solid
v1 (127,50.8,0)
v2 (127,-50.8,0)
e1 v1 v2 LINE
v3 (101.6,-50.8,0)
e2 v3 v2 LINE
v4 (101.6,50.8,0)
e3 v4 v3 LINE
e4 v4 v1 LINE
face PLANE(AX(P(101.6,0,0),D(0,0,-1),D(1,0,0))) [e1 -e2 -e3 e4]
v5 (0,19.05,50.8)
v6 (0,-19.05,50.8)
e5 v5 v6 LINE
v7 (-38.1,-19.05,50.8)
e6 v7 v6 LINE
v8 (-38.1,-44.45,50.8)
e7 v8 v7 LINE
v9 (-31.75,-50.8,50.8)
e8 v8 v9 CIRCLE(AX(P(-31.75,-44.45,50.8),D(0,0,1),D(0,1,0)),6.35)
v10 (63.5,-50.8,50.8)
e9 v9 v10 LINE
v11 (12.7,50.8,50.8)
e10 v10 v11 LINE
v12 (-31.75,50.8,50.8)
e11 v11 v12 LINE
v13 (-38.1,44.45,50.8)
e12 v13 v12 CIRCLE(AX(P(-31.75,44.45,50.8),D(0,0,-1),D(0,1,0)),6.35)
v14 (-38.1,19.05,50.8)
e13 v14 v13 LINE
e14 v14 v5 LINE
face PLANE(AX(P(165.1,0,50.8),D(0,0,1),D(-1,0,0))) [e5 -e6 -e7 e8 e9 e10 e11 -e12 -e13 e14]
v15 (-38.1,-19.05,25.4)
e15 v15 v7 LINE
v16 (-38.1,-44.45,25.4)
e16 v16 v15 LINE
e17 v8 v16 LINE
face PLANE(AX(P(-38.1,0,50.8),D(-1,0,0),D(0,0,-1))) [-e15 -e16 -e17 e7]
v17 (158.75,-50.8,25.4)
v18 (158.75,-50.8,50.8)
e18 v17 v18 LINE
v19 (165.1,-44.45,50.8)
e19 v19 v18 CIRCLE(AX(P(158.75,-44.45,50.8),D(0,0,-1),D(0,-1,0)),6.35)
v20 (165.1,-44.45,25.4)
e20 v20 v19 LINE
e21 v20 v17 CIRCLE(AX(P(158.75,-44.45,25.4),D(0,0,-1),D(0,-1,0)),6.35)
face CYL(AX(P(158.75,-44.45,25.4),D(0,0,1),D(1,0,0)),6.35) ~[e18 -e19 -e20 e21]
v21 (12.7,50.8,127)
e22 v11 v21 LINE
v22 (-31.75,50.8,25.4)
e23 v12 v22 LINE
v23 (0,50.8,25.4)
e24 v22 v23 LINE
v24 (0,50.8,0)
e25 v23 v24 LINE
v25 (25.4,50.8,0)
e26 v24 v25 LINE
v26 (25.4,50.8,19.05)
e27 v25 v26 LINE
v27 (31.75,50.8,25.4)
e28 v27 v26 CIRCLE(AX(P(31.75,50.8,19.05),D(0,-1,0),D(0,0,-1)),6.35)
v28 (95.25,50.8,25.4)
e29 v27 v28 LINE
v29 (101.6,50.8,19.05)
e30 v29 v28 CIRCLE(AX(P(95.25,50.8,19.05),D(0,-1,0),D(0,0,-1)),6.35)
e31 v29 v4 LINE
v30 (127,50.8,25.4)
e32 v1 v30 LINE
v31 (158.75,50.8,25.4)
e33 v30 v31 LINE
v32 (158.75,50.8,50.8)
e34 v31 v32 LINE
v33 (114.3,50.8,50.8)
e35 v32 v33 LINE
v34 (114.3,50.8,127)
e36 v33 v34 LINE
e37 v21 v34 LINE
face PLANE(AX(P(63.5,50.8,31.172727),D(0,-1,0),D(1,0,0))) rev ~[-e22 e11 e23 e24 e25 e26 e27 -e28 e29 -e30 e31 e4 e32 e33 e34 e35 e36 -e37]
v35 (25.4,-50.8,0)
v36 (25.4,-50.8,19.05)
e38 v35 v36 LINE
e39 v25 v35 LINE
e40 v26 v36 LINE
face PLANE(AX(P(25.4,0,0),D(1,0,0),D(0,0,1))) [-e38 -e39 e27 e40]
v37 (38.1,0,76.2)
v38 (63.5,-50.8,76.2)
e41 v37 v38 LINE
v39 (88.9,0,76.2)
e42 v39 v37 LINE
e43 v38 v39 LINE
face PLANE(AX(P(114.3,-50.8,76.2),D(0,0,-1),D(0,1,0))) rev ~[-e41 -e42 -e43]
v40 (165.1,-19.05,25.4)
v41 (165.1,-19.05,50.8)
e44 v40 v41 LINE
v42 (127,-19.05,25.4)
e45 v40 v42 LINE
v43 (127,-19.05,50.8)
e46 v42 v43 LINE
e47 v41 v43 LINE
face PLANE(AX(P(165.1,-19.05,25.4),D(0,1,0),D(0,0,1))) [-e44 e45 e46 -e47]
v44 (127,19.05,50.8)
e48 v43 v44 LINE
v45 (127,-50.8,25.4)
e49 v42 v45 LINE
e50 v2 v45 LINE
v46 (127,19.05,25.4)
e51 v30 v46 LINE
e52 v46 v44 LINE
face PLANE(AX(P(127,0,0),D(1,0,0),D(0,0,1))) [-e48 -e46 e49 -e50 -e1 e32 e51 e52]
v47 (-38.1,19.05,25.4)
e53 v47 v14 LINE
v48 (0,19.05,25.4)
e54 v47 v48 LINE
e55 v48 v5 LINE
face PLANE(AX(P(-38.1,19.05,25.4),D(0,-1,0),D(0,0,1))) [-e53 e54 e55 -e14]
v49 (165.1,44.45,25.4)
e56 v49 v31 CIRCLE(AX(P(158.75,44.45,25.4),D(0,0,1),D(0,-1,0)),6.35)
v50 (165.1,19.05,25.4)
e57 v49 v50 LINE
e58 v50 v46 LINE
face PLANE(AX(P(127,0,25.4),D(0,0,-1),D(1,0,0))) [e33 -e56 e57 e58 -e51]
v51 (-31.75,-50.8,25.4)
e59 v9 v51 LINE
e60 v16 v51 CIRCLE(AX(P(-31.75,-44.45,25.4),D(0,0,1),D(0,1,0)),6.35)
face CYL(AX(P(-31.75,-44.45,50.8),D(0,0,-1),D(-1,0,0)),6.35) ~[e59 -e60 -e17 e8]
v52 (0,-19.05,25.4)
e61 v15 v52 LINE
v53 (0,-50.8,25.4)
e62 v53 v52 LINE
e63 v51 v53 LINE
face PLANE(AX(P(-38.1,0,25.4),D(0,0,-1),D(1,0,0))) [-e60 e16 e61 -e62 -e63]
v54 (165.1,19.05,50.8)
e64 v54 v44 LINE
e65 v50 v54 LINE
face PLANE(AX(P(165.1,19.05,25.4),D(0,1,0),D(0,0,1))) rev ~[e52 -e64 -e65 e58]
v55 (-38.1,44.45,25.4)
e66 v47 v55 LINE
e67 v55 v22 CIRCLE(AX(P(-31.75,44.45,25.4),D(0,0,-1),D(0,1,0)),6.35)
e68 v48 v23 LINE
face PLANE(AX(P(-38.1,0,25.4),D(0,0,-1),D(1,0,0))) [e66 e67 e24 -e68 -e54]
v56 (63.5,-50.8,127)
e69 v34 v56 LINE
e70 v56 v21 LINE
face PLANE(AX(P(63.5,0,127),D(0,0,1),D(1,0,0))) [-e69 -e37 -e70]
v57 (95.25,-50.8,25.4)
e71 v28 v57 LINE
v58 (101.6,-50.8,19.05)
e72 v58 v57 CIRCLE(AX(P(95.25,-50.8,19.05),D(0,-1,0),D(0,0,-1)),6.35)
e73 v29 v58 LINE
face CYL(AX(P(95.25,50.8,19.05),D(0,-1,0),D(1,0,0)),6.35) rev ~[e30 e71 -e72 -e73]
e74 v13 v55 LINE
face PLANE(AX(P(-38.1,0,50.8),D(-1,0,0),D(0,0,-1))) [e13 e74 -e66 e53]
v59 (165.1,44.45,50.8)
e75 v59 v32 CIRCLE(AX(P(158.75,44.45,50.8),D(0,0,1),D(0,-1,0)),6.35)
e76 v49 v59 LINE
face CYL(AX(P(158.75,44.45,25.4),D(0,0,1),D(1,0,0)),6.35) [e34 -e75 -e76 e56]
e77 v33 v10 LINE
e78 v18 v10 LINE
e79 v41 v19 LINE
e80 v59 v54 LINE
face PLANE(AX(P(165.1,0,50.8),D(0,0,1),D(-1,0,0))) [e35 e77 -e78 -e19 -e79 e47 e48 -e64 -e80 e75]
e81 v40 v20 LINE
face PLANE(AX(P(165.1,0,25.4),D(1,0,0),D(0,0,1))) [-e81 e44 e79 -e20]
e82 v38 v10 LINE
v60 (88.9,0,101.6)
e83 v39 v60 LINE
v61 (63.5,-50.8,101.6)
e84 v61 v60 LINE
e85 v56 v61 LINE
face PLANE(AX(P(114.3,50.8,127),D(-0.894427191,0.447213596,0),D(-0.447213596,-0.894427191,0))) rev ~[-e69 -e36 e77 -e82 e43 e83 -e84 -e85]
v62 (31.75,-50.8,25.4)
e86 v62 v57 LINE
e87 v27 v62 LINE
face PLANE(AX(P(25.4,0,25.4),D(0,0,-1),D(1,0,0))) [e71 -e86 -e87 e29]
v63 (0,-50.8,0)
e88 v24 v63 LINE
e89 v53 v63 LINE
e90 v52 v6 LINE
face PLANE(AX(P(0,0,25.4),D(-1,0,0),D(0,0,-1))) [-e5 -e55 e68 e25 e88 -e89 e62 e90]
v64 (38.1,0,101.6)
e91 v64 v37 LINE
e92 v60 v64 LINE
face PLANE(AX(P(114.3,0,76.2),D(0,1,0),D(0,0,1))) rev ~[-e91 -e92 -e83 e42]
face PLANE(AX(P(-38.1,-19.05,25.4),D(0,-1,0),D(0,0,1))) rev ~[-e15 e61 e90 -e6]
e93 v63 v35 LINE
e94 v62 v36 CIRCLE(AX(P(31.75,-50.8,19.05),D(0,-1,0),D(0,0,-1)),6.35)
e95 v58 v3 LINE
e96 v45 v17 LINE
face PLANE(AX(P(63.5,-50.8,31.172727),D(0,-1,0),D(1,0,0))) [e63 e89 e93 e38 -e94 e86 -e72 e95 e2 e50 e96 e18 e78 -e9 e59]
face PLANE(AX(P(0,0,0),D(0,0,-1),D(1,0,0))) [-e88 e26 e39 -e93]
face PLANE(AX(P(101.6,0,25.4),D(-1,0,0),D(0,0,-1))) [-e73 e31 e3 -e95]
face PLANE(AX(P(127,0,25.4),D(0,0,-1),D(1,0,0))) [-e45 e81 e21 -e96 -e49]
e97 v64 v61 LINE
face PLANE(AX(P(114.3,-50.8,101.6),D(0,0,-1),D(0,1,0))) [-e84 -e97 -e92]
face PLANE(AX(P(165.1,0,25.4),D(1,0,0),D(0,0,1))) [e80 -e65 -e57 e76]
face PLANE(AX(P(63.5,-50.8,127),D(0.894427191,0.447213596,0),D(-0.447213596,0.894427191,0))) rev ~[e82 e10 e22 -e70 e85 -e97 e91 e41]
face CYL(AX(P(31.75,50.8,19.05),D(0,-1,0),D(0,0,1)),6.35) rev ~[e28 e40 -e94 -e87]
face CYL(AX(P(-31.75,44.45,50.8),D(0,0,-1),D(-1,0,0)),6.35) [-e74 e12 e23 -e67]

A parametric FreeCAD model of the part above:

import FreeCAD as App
import Part
import Sketcher
Q = App.Units.Quantity


def edges_at(feature, points):
    """Names of the edges that pass closest to the given points."""
    edges = feature.Shape.Edges
    near = lambda p: min(range(len(edges)), key=lambda i: edges[i].distToShape(Part.Vertex(*p))[0])
    return sorted({f"Edge{near(p) + 1}" for p in points})


def add_polygon(sketch, points):
    """Adds a closed chain of lines whose ends are joined by coincident constraints."""
    first, n = sketch.GeometryCount, len(points)
    for a, b in zip(points, points[1:] + points[:1]):
        sketch.addGeometry(Part.LineSegment(App.Vector(*a, 0), App.Vector(*b, 0)), False)
    for i in range(n):
        sketch.addConstraint(Sketcher.Constraint("Coincident", first + i, 2, first + (i + 1) % n, 1))

doc = App.newDocument("Part")
body = doc.addObject("PartDesign::Body", "Body")

# Sketch on XZ plane
sketch1 = doc.addObject("Sketcher::SketchObject", "Sketch")
body.addObject(sketch1)
sketch1.AttachmentSupport = (doc.XZ_Plane, [""])
sketch1.MapMode = "FlatFace"
add_polygon(sketch1, [(0, 25), (0, 0), (25, 0), (25, 25), (102, 25), (102, 0), (127, 0), (127, 25), (165, 25), (165, 51), (-38, 51), (-38, 25)])  # lines 0-11
sketch1.addConstraint([
    Sketcher.Constraint("Vertical", 0),
    Sketcher.Constraint("Horizontal", 1),
    Sketcher.Constraint("Vertical", 2),
    Sketcher.Constraint("Horizontal", 3),
    Sketcher.Constraint("Vertical", 4),
    Sketcher.Constraint("Horizontal", 5),
    Sketcher.Constraint("Vertical", 6),
    Sketcher.Constraint("Horizontal", 7),
    Sketcher.Constraint("Vertical", 8),
    Sketcher.Constraint("Horizontal", 9),
    Sketcher.Constraint("Vertical", 10),
    Sketcher.Constraint("Horizontal", 11),
    Sketcher.Constraint("Coincident", 0, 2, -1, 1),
    Sketcher.Constraint("PointOnObject", 4, 2, -1),
    Sketcher.Constraint("Horizontal", 3, 2, 6, 2),
    Sketcher.Constraint("Horizontal", 7, 2, 10, 2),
    Sketcher.Constraint("Equal", 1, 5),
    Sketcher.Constraint("Equal", 7, 11),
    Sketcher.Constraint("Equal", 5, 0),
    Sketcher.Constraint("Equal", 6, 8),
    Sketcher.Constraint("DistanceX", 1, 1, 1, 2, Q("1 in")),
    Sketcher.Constraint("DistanceX", 3, 1, 3, 2, Q("3 in")),
    Sketcher.Constraint("DistanceX", 9, 2, 9, 1, Q("8 in")),
])
pad1 = doc.addObject("PartDesign::Pad", "Pad")
body.addObject(pad1)
pad1.Profile = sketch1
pad1.Length = Q("4 in")
pad1.Midplane = True
doc.recompute()

fillet = doc.addObject("PartDesign::Fillet", "Fillet")
body.addObject(fillet)
fillet.Base = (pad1, edges_at(pad1, [
    (-38.1, -50.8, 38.1),
    (165.1, -50.8, 38.1),
    (165.1, 50.8, 38.1),
    (-38.1, 50.8, 38.1),
]))
fillet.Radius = Q("0.25 in")

# Sketch on YZ plane
sketch2 = doc.addObject("Sketcher::SketchObject", "Sketch001")
body.addObject(sketch2)
sketch2.AttachmentSupport = (doc.YZ_Plane, [""])
sketch2.MapMode = "FlatFace"
sketch2.AttachmentOffset = App.Placement(App.Vector(0, 0, 6.5 * 25.4), App.Rotation())
add_polygon(sketch2, [(-19, 51), (-19, 25), (19, 25), (19, 51)])  # lines 0-3
sketch2.addConstraint([
    Sketcher.Constraint("Vertical", 0),
    Sketcher.Constraint("Horizontal", 1),
    Sketcher.Constraint("Vertical", 2),
    Sketcher.Constraint("Horizontal", 3),
    Sketcher.Constraint("DistanceY", 0, 2, 0, 1, Q("1 in")),
    Sketcher.Constraint("DistanceX", 1, 1, 1, 2, Q("1.5 in")),
    Sketcher.Constraint("DistanceY", -1, 1, 0, 2, Q("1 in")),
    Sketcher.Constraint("DistanceX", 0, 2, -1, 1, Q("0.75 in")),
])
pocket1 = doc.addObject("PartDesign::Pocket", "Pocket")
body.addObject(pocket1)
pocket1.Profile = sketch2
pocket1.Length = Q("1.5 in")

# Sketch on YZ plane
sketch3 = doc.addObject("Sketcher::SketchObject", "Sketch002")
body.addObject(sketch3)
sketch3.AttachmentSupport = (doc.YZ_Plane, [""])
sketch3.MapMode = "FlatFace"
sketch3.AttachmentOffset = App.Placement(App.Vector(0, 0, -1.5 * 25.4), App.Rotation())
add_polygon(sketch3, [(19, 51), (19, 25), (-19, 25), (-19, 51)])  # lines 0-3
sketch3.addConstraint([
    Sketcher.Constraint("Vertical", 0),
    Sketcher.Constraint("Horizontal", 1),
    Sketcher.Constraint("Vertical", 2),
    Sketcher.Constraint("Horizontal", 3),
    Sketcher.Constraint("DistanceY", 0, 2, 0, 1, Q("1 in")),
    Sketcher.Constraint("DistanceX", 1, 2, 1, 1, Q("1.5 in")),
    Sketcher.Constraint("DistanceY", -1, 1, 0, 2, Q("1 in")),
    Sketcher.Constraint("DistanceX", -1, 1, 0, 2, Q("0.75 in")),
])
pocket2 = doc.addObject("PartDesign::Pocket", "Pocket001")
body.addObject(pocket2)
pocket2.Profile = sketch3
pocket2.Length = Q("1.5 in")
pocket2.Reversed = True

# Sketch on XY plane
sketch4 = doc.addObject("Sketcher::SketchObject", "Sketch003")
body.addObject(sketch4)
sketch4.AttachmentSupport = (doc.XY_Plane, [""])
sketch4.MapMode = "FlatFace"
sketch4.AttachmentOffset = App.Placement(App.Vector(0, 0, 2 * 25.4), App.Rotation())
add_polygon(sketch4, [(13, 51), (13, -51), (114, -51), (114, 51)])  # lines 0-3
sketch4.addConstraint([
    Sketcher.Constraint("Vertical", 0),
    Sketcher.Constraint("Horizontal", 1),
    Sketcher.Constraint("Vertical", 2),
    Sketcher.Constraint("Horizontal", 3),
    Sketcher.Constraint("Equal", 3, 0),
    Sketcher.Constraint("DistanceX", 1, 1, 1, 2, Q("4 in")),
    Sketcher.Constraint("DistanceY", 0, 2, -1, 1, Q("2 in")),
    Sketcher.Constraint("DistanceX", -1, 1, 0, 2, Q("0.5 in")),
])
pad2 = doc.addObject("PartDesign::Pad", "Pad001")
body.addObject(pad2)
pad2.Profile = sketch4
pad2.Length = Q("3 in")

# Sketch on YZ plane
sketch5 = doc.addObject("Sketcher::SketchObject", "Sketch004")
body.addObject(sketch5)
sketch5.AttachmentSupport = (doc.YZ_Plane, [""])
sketch5.MapMode = "FlatFace"
sketch5.AttachmentOffset = App.Placement(App.Vector(0, 0, 4.5 * 25.4), App.Rotation())
add_polygon(sketch5, [(-51, 102), (-51, 76), (0, 76), (0, 102)])  # lines 0-3
sketch5.addConstraint([
    Sketcher.Constraint("Vertical", 0),
    Sketcher.Constraint("Horizontal", 1),
    Sketcher.Constraint("Vertical", 2),
    Sketcher.Constraint("Horizontal", 3),
    Sketcher.Constraint("PointOnObject", 1, 2, -2),
    Sketcher.Constraint("DistanceX", 1, 1, 1, 2, Q("2 in")),
    Sketcher.Constraint("DistanceY", 0, 2, 0, 1, Q("1 in")),
    Sketcher.Constraint("DistanceY", -1, 1, 0, 2, Q("3 in")),
])
pocket3 = doc.addObject("PartDesign::Pocket", "Pocket002")
body.addObject(pocket3)
pocket3.Profile = sketch5
pocket3.Type = "ThroughAll"

# Sketch on XY plane
sketch6 = doc.addObject("Sketcher::SketchObject", "Sketch005")
body.addObject(sketch6)
sketch6.AttachmentSupport = (doc.XY_Plane, [""])
sketch6.MapMode = "FlatFace"
sketch6.AttachmentOffset = App.Placement(App.Vector(0, 0, 5 * 25.4), App.Rotation())
add_polygon(sketch6, [(64, -51), (13, 51), (13, -51)])  # lines 0-2
sketch6.addConstraint([
    Sketcher.Constraint("Vertical", 1),
    Sketcher.Constraint("Horizontal", 2),
    Sketcher.Constraint("DistanceX", 2, 1, 2, 2, Q("2 in")),
    Sketcher.Constraint("DistanceY", 1, 2, 1, 1, Q("4 in")),
    Sketcher.Constraint("DistanceY", -1, 1, 0, 2, Q("2 in")),
    Sketcher.Constraint("DistanceX", -1, 1, 0, 2, Q("0.5 in")),
])
pocket4 = doc.addObject("PartDesign::Pocket", "Pocket003")
body.addObject(pocket4)
pocket4.Profile = sketch6
pocket4.Length = Q("3 in")

# Sketch on XY plane
sketch7 = doc.addObject("Sketcher::SketchObject", "Sketch006")
body.addObject(sketch7)
sketch7.AttachmentSupport = (doc.XY_Plane, [""])
sketch7.MapMode = "FlatFace"
sketch7.AttachmentOffset = App.Placement(App.Vector(0, 0, 5 * 25.4), App.Rotation())
add_polygon(sketch7, [(114, 51), (64, -51), (114, -51)])  # lines 0-2
sketch7.addConstraint([
    Sketcher.Constraint("Horizontal", 1),
    Sketcher.Constraint("Vertical", 2),
    Sketcher.Constraint("DistanceX", 1, 1, 1, 2, Q("2 in")),
    Sketcher.Constraint("DistanceY", 2, 1, 2, 2, Q("4 in")),
    Sketcher.Constraint("DistanceY", 0, 2, -1, 1, Q("2 in")),
    Sketcher.Constraint("DistanceX", -1, 1, 0, 2, Q("2.5 in")),
])
pocket5 = doc.addObject("PartDesign::Pocket", "Pocket004")
body.addObject(pocket5)
pocket5.Profile = sketch7
pocket5.Length = Q("3 in")
doc.recompute()

fillet2 = doc.addObject("PartDesign::Fillet", "Fillet001")
body.addObject(fillet2)
fillet2.Base = (pocket5, edges_at(pocket5, [(25.4, 0, 25.4), (101.6, 0, 25.4)]))
fillet2.Radius = Q("0.25 in")

doc.recompute()
